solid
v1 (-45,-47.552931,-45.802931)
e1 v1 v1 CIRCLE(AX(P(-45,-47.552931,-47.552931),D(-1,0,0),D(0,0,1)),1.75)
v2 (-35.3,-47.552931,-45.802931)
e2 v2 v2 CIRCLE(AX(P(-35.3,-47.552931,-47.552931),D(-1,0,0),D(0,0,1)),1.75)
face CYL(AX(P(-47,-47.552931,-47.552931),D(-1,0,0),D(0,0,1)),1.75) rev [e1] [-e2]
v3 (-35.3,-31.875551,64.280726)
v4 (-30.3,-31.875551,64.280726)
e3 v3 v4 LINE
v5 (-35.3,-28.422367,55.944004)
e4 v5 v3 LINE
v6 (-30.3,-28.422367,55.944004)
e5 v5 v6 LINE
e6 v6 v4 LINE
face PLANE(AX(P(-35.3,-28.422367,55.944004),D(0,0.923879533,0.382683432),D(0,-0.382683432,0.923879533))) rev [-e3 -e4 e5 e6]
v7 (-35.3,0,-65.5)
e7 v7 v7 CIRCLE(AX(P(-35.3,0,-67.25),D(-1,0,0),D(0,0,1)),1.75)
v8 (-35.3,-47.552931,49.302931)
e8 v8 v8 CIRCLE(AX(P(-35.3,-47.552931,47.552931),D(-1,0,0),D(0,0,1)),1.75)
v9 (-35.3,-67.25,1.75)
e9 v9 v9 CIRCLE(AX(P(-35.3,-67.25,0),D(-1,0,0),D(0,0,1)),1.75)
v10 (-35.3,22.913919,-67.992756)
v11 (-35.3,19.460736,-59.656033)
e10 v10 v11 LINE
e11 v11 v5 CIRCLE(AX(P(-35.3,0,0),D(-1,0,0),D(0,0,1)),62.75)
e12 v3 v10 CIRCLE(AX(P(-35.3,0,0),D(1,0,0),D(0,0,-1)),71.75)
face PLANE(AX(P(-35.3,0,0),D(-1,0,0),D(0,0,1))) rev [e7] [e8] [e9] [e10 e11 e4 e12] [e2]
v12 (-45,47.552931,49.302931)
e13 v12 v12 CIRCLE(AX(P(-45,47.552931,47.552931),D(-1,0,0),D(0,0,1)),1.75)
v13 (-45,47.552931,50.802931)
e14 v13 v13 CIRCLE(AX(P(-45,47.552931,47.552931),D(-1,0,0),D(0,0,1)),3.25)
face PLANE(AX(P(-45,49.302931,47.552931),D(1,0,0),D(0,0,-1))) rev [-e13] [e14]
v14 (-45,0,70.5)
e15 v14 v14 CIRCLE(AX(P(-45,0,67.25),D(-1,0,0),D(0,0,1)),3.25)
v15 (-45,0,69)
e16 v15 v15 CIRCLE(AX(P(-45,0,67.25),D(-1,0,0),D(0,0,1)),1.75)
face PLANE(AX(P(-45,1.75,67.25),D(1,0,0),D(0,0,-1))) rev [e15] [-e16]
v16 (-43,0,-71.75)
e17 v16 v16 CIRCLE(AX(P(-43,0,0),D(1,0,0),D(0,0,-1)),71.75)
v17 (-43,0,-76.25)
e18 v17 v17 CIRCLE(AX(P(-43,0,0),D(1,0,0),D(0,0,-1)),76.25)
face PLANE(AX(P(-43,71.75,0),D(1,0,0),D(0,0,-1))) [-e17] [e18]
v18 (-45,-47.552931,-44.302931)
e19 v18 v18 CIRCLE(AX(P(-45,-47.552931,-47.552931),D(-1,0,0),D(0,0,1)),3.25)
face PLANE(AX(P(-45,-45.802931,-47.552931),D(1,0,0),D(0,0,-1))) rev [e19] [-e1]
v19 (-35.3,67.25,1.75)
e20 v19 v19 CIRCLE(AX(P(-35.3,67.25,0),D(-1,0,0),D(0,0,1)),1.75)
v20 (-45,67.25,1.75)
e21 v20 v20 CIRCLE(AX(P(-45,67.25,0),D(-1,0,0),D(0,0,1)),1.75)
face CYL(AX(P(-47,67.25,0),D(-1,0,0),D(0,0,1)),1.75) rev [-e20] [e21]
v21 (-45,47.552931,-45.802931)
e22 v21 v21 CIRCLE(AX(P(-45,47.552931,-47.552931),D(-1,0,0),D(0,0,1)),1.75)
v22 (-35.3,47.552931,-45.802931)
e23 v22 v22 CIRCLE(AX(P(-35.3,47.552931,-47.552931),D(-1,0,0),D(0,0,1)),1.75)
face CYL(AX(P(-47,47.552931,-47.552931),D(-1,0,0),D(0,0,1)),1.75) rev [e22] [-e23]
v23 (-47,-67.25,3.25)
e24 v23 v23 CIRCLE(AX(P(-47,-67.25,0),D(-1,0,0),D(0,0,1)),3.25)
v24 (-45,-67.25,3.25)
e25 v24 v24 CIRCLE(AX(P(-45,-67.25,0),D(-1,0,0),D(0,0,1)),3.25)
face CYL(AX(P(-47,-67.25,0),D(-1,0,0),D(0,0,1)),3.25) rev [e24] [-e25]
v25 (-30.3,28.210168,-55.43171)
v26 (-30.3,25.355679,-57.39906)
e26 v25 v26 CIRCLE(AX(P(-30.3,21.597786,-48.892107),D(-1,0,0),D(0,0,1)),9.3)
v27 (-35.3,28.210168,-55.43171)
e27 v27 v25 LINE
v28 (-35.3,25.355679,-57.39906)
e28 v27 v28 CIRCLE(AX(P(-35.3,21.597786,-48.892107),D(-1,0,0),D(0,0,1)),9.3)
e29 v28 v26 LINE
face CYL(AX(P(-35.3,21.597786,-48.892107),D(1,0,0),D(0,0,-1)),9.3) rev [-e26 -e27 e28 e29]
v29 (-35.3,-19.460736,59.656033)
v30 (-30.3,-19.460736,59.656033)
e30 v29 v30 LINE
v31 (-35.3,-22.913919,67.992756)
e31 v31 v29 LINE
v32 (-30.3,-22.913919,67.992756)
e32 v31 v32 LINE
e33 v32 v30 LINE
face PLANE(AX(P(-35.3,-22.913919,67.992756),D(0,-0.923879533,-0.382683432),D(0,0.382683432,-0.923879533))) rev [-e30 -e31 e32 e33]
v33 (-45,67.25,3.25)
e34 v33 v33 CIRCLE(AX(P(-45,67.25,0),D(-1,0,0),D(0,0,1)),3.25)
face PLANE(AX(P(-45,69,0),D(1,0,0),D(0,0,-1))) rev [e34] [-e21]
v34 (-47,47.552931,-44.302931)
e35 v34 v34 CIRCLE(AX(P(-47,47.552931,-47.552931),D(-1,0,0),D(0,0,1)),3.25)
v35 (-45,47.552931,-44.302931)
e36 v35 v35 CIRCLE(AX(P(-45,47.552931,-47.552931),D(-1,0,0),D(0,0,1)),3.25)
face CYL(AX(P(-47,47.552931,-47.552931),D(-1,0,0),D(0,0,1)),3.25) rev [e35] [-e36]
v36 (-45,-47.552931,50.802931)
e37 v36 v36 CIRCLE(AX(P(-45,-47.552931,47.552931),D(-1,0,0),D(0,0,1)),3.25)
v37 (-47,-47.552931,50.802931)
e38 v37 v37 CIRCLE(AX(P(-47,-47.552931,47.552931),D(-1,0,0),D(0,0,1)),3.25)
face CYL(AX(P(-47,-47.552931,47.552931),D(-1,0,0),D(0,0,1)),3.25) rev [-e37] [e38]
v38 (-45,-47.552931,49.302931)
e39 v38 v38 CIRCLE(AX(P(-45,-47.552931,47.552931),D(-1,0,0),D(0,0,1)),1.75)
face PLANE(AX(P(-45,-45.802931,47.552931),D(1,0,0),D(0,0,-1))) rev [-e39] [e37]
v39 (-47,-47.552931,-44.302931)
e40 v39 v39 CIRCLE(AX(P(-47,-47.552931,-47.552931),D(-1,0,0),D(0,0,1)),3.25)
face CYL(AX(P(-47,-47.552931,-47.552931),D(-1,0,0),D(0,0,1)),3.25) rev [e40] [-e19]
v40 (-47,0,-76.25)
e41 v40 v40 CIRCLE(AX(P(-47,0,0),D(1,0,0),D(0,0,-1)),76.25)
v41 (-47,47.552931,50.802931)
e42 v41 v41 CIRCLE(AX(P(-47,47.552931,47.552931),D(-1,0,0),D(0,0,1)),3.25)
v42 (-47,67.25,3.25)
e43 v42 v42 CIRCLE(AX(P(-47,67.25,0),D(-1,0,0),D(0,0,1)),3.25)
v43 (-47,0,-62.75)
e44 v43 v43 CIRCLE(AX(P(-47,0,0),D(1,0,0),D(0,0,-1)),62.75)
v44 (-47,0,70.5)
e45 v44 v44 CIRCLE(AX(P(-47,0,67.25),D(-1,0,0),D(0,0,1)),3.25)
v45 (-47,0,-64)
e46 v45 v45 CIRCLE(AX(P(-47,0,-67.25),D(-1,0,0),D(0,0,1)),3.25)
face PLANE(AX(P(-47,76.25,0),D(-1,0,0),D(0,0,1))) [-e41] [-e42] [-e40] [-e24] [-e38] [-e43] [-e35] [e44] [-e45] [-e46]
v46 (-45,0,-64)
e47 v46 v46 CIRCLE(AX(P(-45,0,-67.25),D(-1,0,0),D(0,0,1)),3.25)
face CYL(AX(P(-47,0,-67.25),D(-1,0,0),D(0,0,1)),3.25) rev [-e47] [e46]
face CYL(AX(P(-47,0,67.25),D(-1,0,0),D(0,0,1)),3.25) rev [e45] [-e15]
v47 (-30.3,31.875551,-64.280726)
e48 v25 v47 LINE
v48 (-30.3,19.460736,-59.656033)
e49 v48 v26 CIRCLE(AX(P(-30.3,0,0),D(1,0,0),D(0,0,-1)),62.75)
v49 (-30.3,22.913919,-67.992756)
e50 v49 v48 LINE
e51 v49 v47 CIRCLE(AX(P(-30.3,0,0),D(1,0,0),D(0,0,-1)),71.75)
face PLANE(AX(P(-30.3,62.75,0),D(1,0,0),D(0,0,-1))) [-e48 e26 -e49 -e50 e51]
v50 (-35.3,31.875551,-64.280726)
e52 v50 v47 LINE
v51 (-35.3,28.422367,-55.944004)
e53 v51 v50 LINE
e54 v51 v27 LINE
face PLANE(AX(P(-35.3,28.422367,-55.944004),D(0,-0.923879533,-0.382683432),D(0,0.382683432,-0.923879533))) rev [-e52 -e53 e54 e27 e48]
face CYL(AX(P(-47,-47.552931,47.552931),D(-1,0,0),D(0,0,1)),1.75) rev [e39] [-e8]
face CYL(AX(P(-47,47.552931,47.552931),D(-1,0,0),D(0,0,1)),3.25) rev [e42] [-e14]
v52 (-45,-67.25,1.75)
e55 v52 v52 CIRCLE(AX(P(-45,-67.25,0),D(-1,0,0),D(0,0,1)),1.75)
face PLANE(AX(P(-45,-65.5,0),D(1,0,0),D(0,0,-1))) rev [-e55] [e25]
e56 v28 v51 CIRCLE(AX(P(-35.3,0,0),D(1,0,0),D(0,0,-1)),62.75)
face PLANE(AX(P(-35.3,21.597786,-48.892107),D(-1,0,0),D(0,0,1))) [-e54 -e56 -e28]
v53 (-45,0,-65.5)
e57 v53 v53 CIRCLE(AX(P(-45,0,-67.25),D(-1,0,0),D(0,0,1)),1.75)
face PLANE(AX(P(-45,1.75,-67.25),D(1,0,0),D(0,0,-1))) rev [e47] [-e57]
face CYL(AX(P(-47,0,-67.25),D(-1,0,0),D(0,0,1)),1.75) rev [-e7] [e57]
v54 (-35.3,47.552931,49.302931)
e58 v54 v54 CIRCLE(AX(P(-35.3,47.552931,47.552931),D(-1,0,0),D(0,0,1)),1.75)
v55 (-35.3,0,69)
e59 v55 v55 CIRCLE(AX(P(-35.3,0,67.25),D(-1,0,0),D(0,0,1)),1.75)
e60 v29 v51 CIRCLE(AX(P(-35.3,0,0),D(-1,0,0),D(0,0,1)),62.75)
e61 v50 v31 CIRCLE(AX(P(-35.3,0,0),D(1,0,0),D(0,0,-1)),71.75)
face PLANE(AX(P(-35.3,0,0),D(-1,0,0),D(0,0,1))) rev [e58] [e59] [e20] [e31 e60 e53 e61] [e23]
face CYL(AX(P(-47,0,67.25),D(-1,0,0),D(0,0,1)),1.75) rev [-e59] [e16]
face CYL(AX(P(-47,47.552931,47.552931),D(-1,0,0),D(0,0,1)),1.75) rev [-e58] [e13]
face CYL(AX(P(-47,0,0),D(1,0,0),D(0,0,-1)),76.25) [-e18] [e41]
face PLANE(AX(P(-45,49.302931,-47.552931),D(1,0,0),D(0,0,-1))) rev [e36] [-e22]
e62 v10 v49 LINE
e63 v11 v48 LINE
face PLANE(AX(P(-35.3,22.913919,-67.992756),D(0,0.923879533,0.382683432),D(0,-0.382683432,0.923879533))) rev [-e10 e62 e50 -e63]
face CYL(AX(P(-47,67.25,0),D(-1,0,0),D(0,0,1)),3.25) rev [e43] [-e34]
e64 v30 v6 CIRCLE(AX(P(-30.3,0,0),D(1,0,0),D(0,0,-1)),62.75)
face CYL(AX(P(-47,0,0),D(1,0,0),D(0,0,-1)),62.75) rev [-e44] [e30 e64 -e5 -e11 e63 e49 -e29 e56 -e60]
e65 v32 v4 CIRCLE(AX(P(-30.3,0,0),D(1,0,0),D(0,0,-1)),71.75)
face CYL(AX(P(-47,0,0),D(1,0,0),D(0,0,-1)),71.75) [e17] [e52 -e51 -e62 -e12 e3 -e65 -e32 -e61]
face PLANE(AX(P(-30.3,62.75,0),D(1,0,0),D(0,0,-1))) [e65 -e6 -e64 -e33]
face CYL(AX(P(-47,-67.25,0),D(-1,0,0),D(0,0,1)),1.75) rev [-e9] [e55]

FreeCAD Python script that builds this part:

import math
import FreeCAD as App
import Part
import Sketcher
from FreeCAD import Vector
Q = App.Units.Quantity

doc = App.newDocument("Part")
body = doc.addObject("PartDesign::Body", "Body")

sketch1 = body.newObject("Sketcher::SketchObject", "Sketch")
sketch1.AttachmentSupport = (doc.getObject("XY_Plane"), [""])
sketch1.MapMode = "FlatFace"
sketch1.addGeometry(Part.LineSegment(Vector(-30.3, 71.75, 0), Vector(-43, 71.75, 0)), False)
sketch1.addGeometry(Part.LineSegment(Vector(-43, 71.75, 0), Vector(-43, 76.25, 0)), False)
sketch1.addGeometry(Part.LineSegment(Vector(-43, 76.25, 0), Vector(-47, 76.25, 0)), False)
sketch1.addGeometry(Part.LineSegment(Vector(-47, 76.25, 0), Vector(-47, 62.75, 0)), False)
sketch1.addGeometry(Part.LineSegment(Vector(-47, 62.75, 0), Vector(-30.3, 62.75, 0)), False)
sketch1.addGeometry(Part.LineSegment(Vector(-30.3, 62.75, 0), Vector(-30.3, 71.75, 0)), False)
sketch1.addConstraint(Sketcher.Constraint("Coincident", 0, 2, 1, 1))
sketch1.addConstraint(Sketcher.Constraint("Coincident", 1, 2, 2, 1))
sketch1.addConstraint(Sketcher.Constraint("Coincident", 2, 2, 3, 1))
sketch1.addConstraint(Sketcher.Constraint("Coincident", 3, 2, 4, 1))
sketch1.addConstraint(Sketcher.Constraint("Coincident", 4, 2, 5, 1))
sketch1.addConstraint(Sketcher.Constraint("Coincident", 5, 2, 0, 1))
sketch1.addConstraint(Sketcher.Constraint("Horizontal", 0))
sketch1.addConstraint(Sketcher.Constraint("Vertical", 1))
sketch1.addConstraint(Sketcher.Constraint("Horizontal", 2))
sketch1.addConstraint(Sketcher.Constraint("Vertical", 3))
sketch1.addConstraint(Sketcher.Constraint("Horizontal", 4))
sketch1.addConstraint(Sketcher.Constraint("Vertical", 5))
sketch1.addConstraint(Sketcher.Constraint("DistanceX", 2, 2, 2, 1, 4.0))
sketch1.addConstraint(Sketcher.Constraint("DistanceY", 5, 1, 5, 2, 9.0))
sketch1.addConstraint(Sketcher.Constraint("DistanceX", 0, 2, 0, 1, 12.7))
sketch1.addConstraint(Sketcher.Constraint("DistanceY", 1, 1, 1, 2, 4.5))
sketch1.addConstraint(Sketcher.Constraint("DistanceX", 0, 2, -1, 1, 43.0))
sketch1.addConstraint(Sketcher.Constraint("DistanceY", -1, 1, 0, 2, 71.75))
revolution = body.newObject("PartDesign::Revolution", "Revolution")
revolution.Profile = sketch1
revolution.ReferenceAxis = (sketch1, ["H_Axis"])
revolution.Angle = 360

sketch2 = body.newObject("Sketcher::SketchObject", "Sketch001")
sketch2.AttachmentSupport = (doc.getObject("YZ_Plane"), [""])
sketch2.MapMode = "FlatFace"
sketch2.AttachmentOffset = App.Placement(Vector(0, 0, -30.3), App.Rotation())
sketch2.addGeometry(Part.LineSegment(Vector(28.422367, -55.944004, 0), Vector(31.875551, -64.280726, 0)), False)
sketch2.addGeometry(Part.ArcOfCircle(Part.Circle(Vector(0, 0, 0), Vector(0, 0, 1), 71.75), math.radians(-63.624089), math.radians(108.624089)), False)
sketch2.addGeometry(Part.LineSegment(Vector(-22.913919, 67.992756, 0), Vector(-19.460736, 59.656033, 0)), False)
sketch2.addGeometry(Part.ArcOfCircle(Part.Circle(Vector(0, 0, 0), Vector(0, 0, 1), 62.75), math.radians(-63.06714), math.radians(108.06714)), False)
sketch2.addConstraint(Sketcher.Constraint("Coincident", 0, 2, 1, 1))
sketch2.addConstraint(Sketcher.Constraint("Coincident", 1, 2, 2, 1))
sketch2.addConstraint(Sketcher.Constraint("Coincident", 2, 2, 3, 2))
sketch2.addConstraint(Sketcher.Constraint("Coincident", 3, 1, 0, 1))
sketch2.addConstraint(Sketcher.Constraint("Coincident", 1, 3, -1, 1))
sketch2.addConstraint(Sketcher.Constraint("Coincident", 3, 3, -1, 1))
sketch2.addConstraint(Sketcher.Constraint("Parallel", 0, 2))
sketch2.addConstraint(Sketcher.Constraint("Equal", 0, 2))
sketch2.addConstraint(Sketcher.Constraint("Radius", 1, 71.75))
sketch2.addConstraint(Sketcher.Constraint("Radius", 3, 62.75))
sketch2.addConstraint(Sketcher.Constraint("Angle", 0, Q("-67.5 deg")))
sketch2.addConstraint(Sketcher.Constraint("DistanceX", -1, 1, 0, 2, 31.875551))
pocket1 = body.newObject("PartDesign::Pocket", "Pocket")
pocket1.Profile = sketch2
pocket1.Length = 5

sketch3 = body.newObject("Sketcher::SketchObject", "Sketch002")
sketch3.AttachmentSupport = (doc.getObject("YZ_Plane"), [""])
sketch3.MapMode = "FlatFace"
sketch3.AttachmentOffset = App.Placement(Vector(0, 0, -30.3), App.Rotation())
sketch3.addGeometry(Part.LineSegment(Vector(-28.422367, 55.944004, 0), Vector(-31.875551, 64.280726, 0)), False)
sketch3.addGeometry(Part.ArcOfCircle(Part.Circle(Vector(0, 0, 0), Vector(0, 0, 1), 71.75), math.radians(116.375911), math.radians(288.624089)), False)
sketch3.addGeometry(Part.LineSegment(Vector(22.913919, -67.992756, 0), Vector(19.460736, -59.656033, 0)), False)
sketch3.addGeometry(Part.ArcOfCircle(Part.Circle(Vector(0, 0, 0), Vector(0, 0, 1), 62.75), math.radians(116.93286), math.radians(288.06714)), False)
sketch3.addConstraint(Sketcher.Constraint("Coincident", 0, 2, 1, 1))
sketch3.addConstraint(Sketcher.Constraint("Coincident", 1, 2, 2, 1))
sketch3.addConstraint(Sketcher.Constraint("Coincident", 2, 2, 3, 2))
sketch3.addConstraint(Sketcher.Constraint("Coincident", 3, 1, 0, 1))
sketch3.addConstraint(Sketcher.Constraint("Coincident", 1, 3, -1, 1))
sketch3.addConstraint(Sketcher.Constraint("Coincident", 3, 3, -1, 1))
sketch3.addConstraint(Sketcher.Constraint("Parallel", 0, 2))
sketch3.addConstraint(Sketcher.Constraint("Equal", 0, 2))
sketch3.addConstraint(Sketcher.Constraint("Radius", 1, 71.75))
sketch3.addConstraint(Sketcher.Constraint("Radius", 3, 62.75))
sketch3.addConstraint(Sketcher.Constraint("Angle", 0, Q("112.5 deg")))
sketch3.addConstraint(Sketcher.Constraint("DistanceX", 0, 2, -1, 1, 31.875551))
pocket2 = body.newObject("PartDesign::Pocket", "Pocket001")
pocket2.Profile = sketch3
pocket2.Length = 5

sketch4 = body.newObject("Sketcher::SketchObject", "Sketch003")
sketch4.AttachmentSupport = (doc.getObject("YZ_Plane"), [""])
sketch4.MapMode = "FlatFace"
sketch4.AttachmentOffset = App.Placement(Vector(0, 0, -30.3), App.Rotation())
sketch4.addGeometry(Part.LineSegment(Vector(28.422367, -55.944004, 0), Vector(28.210168, -55.43171, 0)), False)
sketch4.addGeometry(Part.ArcOfCircle(Part.Circle(Vector(21.597786, -48.892107, 0), Vector(0, 0, 1), 9.3), math.radians(-66.166852), math.radians(-44.682941)), False)
sketch4.addGeometry(Part.ArcOfCircle(Part.Circle(Vector(-0.000001, 0.000002, 0), Vector(0, 0, 1), 62.750002), math.radians(-66.166852), math.radians(-63.06714)), False)
sketch4.addConstraint(Sketcher.Constraint("Coincident", 0, 2, 1, 2))
sketch4.addConstraint(Sketcher.Constraint("Tangent", 1, 1, 2, 1))
sketch4.addConstraint(Sketcher.Constraint("Coincident", 2, 2, 0, 1))
sketch4.addConstraint(Sketcher.Constraint("Coincident", 2, 3, -1, 1))
sketch4.addConstraint(Sketcher.Constraint("Radius", 1, 9.3))
sketch4.addConstraint(Sketcher.Constraint("Angle", 0, Q("112.5 deg")))
sketch4.addConstraint(Sketcher.Constraint("Radius", 2, 62.750002))
sketch4.addConstraint(Sketcher.Constraint("DistanceX", 0, 2, 2, 2, 0.212199))
sketch4.addConstraint(Sketcher.Constraint("DistanceX", -1, 1, 0, 2, 28.210168))
pad1 = body.newObject("PartDesign::Pad", "Pad")
pad1.Profile = sketch4
pad1.Length = 5
pad1.Reversed = True

sketch5 = body.newObject("Sketcher::SketchObject", "Sketch004")
sketch5.AttachmentSupport = (doc.getObject("YZ_Plane"), [""])
sketch5.MapMode = "FlatFace"
sketch5.AttachmentOffset = App.Placement(Vector(0, 0, -47), App.Rotation())
sketch5.addGeometry(Part.Circle(Vector(0, -67.25, 0), Vector(0, 0, 1), 1.75), False)
sketch5.addConstraint(Sketcher.Constraint("PointOnObject", 0, 3, -2))
sketch5.addConstraint(Sketcher.Constraint("Diameter", 0, 3.5))
sketch5.addConstraint(Sketcher.Constraint("DistanceY", 0, 3, -1, 1, 67.25))
doc.recompute()
hole = body.newObject("PartDesign::Hole", "Hole")
hole.Profile = sketch5
hole.ThreadType = "None"
hole.Diameter = 3.5
hole.DepthType = "Dimension"
hole.Depth = 16.7
hole.DrillPoint = "Flat"
hole.HoleCutType = "Counterbore"
hole.HoleCutDiameter = 6.5
hole.HoleCutDepth = 2
hole.Reversed = True

sketch6 = body.newObject("Sketcher::SketchObject", "Sketch005")
sketch6.AttachmentSupport = (doc.getObject("YZ_Plane"), [""])
sketch6.MapMode = "FlatFace"
sketch6.AttachmentOffset = App.Placement(Vector(0, 0, -47), App.Rotation())
sketch6.addGeometry(Part.Circle(Vector(47.552931, -47.552931, 0), Vector(0, 0, 1), 1.75), False)
sketch6.addConstraint(Sketcher.Constraint("Diameter", 0, 3.5))
sketch6.addConstraint(Sketcher.Constraint("DistanceX", -1, 1, 0, 3, 47.552931))
sketch6.addConstraint(Sketcher.Constraint("DistanceY", 0, 3, -1, 1, 47.552931))
doc.recompute()
hole2 = body.newObject("PartDesign::Hole", "Hole001")
hole2.Profile = sketch6
hole2.ThreadType = "None"
hole2.Diameter = 3.5
hole2.DepthType = "Dimension"
hole2.Depth = 16.7
hole2.DrillPoint = "Flat"
hole2.HoleCutType = "Counterbore"
hole2.HoleCutDiameter = 6.5
hole2.HoleCutDepth = 2
hole2.Reversed = True

sketch7 = body.newObject("Sketcher::SketchObject", "Sketch006")
sketch7.AttachmentSupport = (doc.getObject("YZ_Plane"), [""])
sketch7.MapMode = "FlatFace"
sketch7.AttachmentOffset = App.Placement(Vector(0, 0, -47), App.Rotation())
sketch7.addGeometry(Part.Circle(Vector(67.25, 0, 0), Vector(0, 0, 1), 1.75), False)
sketch7.addConstraint(Sketcher.Constraint("PointOnObject", 0, 3, -1))
sketch7.addConstraint(Sketcher.Constraint("Diameter", 0, 3.5))
sketch7.addConstraint(Sketcher.Constraint("DistanceX", -1, 1, 0, 3, 67.25))
doc.recompute()
hole3 = body.newObject("PartDesign::Hole", "Hole002")
hole3.Profile = sketch7
hole3.ThreadType = "None"
hole3.Diameter = 3.5
hole3.DepthType = "Dimension"
hole3.Depth = 16.7
hole3.DrillPoint = "Flat"
hole3.HoleCutType = "Counterbore"
hole3.HoleCutDiameter = 6.5
hole3.HoleCutDepth = 2
hole3.Reversed = True

sketch8 = body.newObject("Sketcher::SketchObject", "Sketch007")
sketch8.AttachmentSupport = (doc.getObject("YZ_Plane"), [""])
sketch8.MapMode = "FlatFace"
sketch8.AttachmentOffset = App.Placement(Vector(0, 0, -47), App.Rotation())
sketch8.addGeometry(Part.Circle(Vector(47.552931, 47.552931, 0), Vector(0, 0, 1), 1.75), False)
sketch8.addConstraint(Sketcher.Constraint("Diameter", 0, 3.5))
sketch8.addConstraint(Sketcher.Constraint("DistanceX", -1, 1, 0, 3, 47.552931))
sketch8.addConstraint(Sketcher.Constraint("DistanceY", -1, 1, 0, 3, 47.552931))
doc.recompute()
hole4 = body.newObject("PartDesign::Hole", "Hole003")
hole4.Profile = sketch8
hole4.ThreadType = "None"
hole4.Diameter = 3.5
hole4.DepthType = "Dimension"
hole4.Depth = 16.7
hole4.DrillPoint = "Flat"
hole4.HoleCutType = "Counterbore"
hole4.HoleCutDiameter = 6.5
hole4.HoleCutDepth = 2
hole4.Reversed = True

sketch9 = body.newObject("Sketcher::SketchObject", "Sketch008")
sketch9.AttachmentSupport = (doc.getObject("YZ_Plane"), [""])
sketch9.MapMode = "FlatFace"
sketch9.AttachmentOffset = App.Placement(Vector(0, 0, -47), App.Rotation())
sketch9.addGeometry(Part.Circle(Vector(0, 67.25, 0), Vector(0, 0, 1), 1.75), False)
sketch9.addConstraint(Sketcher.Constraint("PointOnObject", 0, 3, -2))
sketch9.addConstraint(Sketcher.Constraint("Diameter", 0, 3.5))
sketch9.addConstraint(Sketcher.Constraint("DistanceY", -1, 1, 0, 3, 67.25))
doc.recompute()
hole5 = body.newObject("PartDesign::Hole", "Hole004")
hole5.Profile = sketch9
hole5.ThreadType = "None"
hole5.Diameter = 3.5
hole5.DepthType = "Dimension"
hole5.Depth = 16.7
hole5.DrillPoint = "Flat"
hole5.HoleCutType = "Counterbore"
hole5.HoleCutDiameter = 6.5
hole5.HoleCutDepth = 2
hole5.Reversed = True

sketch10 = body.newObject("Sketcher::SketchObject", "Sketch009")
sketch10.AttachmentSupport = (doc.getObject("YZ_Plane"), [""])
sketch10.MapMode = "FlatFace"
sketch10.AttachmentOffset = App.Placement(Vector(0, 0, -47), App.Rotation())
sketch10.addGeometry(Part.Circle(Vector(-47.552931, 47.552931, 0), Vector(0, 0, 1), 1.75), False)
sketch10.addConstraint(Sketcher.Constraint("Diameter", 0, 3.5))
sketch10.addConstraint(Sketcher.Constraint("DistanceX", 0, 3, -1, 1, 47.552931))
sketch10.addConstraint(Sketcher.Constraint("DistanceY", -1, 1, 0, 3, 47.552931))
doc.recompute()
hole6 = body.newObject("PartDesign::Hole", "Hole005")
hole6.Profile = sketch10
hole6.ThreadType = "None"
hole6.Diameter = 3.5
hole6.DepthType = "Dimension"
hole6.Depth = 16.7
hole6.DrillPoint = "Flat"
hole6.HoleCutType = "Counterbore"
hole6.HoleCutDiameter = 6.5
hole6.HoleCutDepth = 2
hole6.Reversed = True

sketch11 = body.newObject("Sketcher::SketchObject", "Sketch010")
sketch11.AttachmentSupport = (doc.getObject("YZ_Plane"), [""])
sketch11.MapMode = "FlatFace"
sketch11.AttachmentOffset = App.Placement(Vector(0, 0, -47), App.Rotation())
sketch11.addGeometry(Part.Circle(Vector(-67.25, 0, 0), Vector(0, 0, 1), 1.75), False)
sketch11.addConstraint(Sketcher.Constraint("PointOnObject", 0, 3, -1))
sketch11.addConstraint(Sketcher.Constraint("Diameter", 0, 3.5))
sketch11.addConstraint(Sketcher.Constraint("DistanceX", 0, 3, -1, 1, 67.25))
doc.recompute()
hole7 = body.newObject("PartDesign::Hole", "Hole006")
hole7.Profile = sketch11
hole7.ThreadType = "None"
hole7.Diameter = 3.5
hole7.DepthType = "Dimension"
hole7.Depth = 16.7
hole7.DrillPoint = "Flat"
hole7.HoleCutType = "Counterbore"
hole7.HoleCutDiameter = 6.5
hole7.HoleCutDepth = 2
hole7.Reversed = True

sketch12 = body.newObject("Sketcher::SketchObject", "Sketch011")
sketch12.AttachmentSupport = (doc.getObject("YZ_Plane"), [""])
sketch12.MapMode = "FlatFace"
sketch12.AttachmentOffset = App.Placement(Vector(0, 0, -47), App.Rotation())
sketch12.addGeometry(Part.Circle(Vector(-47.552931, -47.552931, 0), Vector(0, 0, 1), 1.75), False)
sketch12.addConstraint(Sketcher.Constraint("Diameter", 0, 3.5))
sketch12.addConstraint(Sketcher.Constraint("DistanceX", 0, 3, -1, 1, 47.552931))
sketch12.addConstraint(Sketcher.Constraint("DistanceY", 0, 3, -1, 1, 47.552931))
doc.recompute()
hole8 = body.newObject("PartDesign::Hole", "Hole007")
hole8.Profile = sketch12
hole8.ThreadType = "None"
hole8.Diameter = 3.5
hole8.DepthType = "Dimension"
hole8.Depth = 16.7
hole8.DrillPoint = "Flat"
hole8.HoleCutType = "Counterbore"
hole8.HoleCutDiameter = 6.5
hole8.HoleCutDepth = 2
hole8.Reversed = True

doc.recompute()
